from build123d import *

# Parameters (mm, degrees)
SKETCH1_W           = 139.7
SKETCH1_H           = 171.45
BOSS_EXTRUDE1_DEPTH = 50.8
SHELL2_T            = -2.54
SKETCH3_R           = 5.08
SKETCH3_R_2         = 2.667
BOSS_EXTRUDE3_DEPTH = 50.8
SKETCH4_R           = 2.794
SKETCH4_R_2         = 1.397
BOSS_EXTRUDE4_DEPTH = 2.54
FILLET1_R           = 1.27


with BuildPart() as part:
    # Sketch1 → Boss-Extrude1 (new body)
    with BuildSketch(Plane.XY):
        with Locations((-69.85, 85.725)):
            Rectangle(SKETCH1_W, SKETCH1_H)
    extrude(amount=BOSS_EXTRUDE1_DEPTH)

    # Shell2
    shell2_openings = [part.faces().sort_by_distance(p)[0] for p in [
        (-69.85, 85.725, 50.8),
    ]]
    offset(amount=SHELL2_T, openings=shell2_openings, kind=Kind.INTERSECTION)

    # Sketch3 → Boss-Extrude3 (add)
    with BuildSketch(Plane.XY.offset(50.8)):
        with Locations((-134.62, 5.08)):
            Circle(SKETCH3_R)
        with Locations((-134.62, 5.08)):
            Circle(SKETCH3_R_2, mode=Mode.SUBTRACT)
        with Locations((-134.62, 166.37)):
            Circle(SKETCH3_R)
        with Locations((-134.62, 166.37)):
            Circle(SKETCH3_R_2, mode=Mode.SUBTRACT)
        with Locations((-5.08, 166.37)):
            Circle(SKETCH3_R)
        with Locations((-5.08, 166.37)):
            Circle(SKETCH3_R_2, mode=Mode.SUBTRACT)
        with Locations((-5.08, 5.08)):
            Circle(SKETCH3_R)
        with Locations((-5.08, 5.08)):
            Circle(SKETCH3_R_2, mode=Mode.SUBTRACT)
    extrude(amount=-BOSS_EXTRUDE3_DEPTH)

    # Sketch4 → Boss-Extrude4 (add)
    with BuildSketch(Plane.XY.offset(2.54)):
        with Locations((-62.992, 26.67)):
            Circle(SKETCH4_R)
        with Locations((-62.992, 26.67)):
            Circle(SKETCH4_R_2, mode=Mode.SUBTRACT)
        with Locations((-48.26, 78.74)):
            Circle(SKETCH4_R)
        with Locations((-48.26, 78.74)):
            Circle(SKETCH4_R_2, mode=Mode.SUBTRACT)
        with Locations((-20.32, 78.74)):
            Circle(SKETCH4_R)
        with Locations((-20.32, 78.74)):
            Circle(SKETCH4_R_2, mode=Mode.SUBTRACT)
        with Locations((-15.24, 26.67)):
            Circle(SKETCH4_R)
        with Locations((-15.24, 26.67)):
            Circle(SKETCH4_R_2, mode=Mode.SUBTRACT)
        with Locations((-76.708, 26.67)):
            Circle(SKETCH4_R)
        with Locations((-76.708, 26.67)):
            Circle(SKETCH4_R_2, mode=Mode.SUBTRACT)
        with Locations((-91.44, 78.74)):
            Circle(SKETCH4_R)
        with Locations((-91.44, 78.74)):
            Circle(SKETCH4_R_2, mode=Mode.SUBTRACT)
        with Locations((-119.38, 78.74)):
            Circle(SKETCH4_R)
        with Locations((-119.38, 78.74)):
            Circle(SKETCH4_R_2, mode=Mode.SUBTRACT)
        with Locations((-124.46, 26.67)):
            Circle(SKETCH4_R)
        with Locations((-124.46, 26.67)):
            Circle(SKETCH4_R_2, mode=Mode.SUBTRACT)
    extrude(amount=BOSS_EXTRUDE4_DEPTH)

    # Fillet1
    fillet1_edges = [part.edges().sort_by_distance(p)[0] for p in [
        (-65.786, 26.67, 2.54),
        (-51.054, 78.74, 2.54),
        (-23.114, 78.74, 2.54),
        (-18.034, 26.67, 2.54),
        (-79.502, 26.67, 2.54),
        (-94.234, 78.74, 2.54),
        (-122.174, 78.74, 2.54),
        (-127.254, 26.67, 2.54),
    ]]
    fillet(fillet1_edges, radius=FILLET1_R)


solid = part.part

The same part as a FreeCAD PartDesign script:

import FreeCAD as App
import Part
import Sketcher
Q = App.Units.Quantity


def edges_at(feature, points):
    """Names of the edges that pass closest to the given points."""
    edges = feature.Shape.Edges
    near = lambda p: min(range(len(edges)), key=lambda i: edges[i].distToShape(Part.Vertex(*p))[0])
    return sorted({f"Edge{near(p) + 1}" for p in points})


def faces_at(feature, points):
    """Names of the faces that lie closest to the given points."""
    faces = feature.Shape.Faces
    near = lambda p: min(range(len(faces)), key=lambda i: faces[i].distToShape(Part.Vertex(*p))[0])
    return sorted({f"Face{near(p) + 1}" for p in points})

doc = App.newDocument("Part")
body = doc.addObject("PartDesign::Body", "Body")

# Sketch on XY plane
sketch1 = body.newObject("Sketcher::SketchObject", "Sketch")
sketch1.AttachmentSupport = (doc.getObject("XY_Plane"), [""])
sketch1.MapMode = "FlatFace"
sketch1.addGeometry(Part.LineSegment(App.Vector(-139.7, 171.45, 0), App.Vector(-139.7, 0, 0)), False)
sketch1.addGeometry(Part.LineSegment(App.Vector(-139.7, 0, 0), App.Vector(0, 0, 0)), False)
sketch1.addGeometry(Part.LineSegment(App.Vector(0, 0, 0), App.Vector(0, 171.45, 0)), False)
sketch1.addGeometry(Part.LineSegment(App.Vector(0, 171.45, 0), App.Vector(-139.7, 171.45, 0)), False)
sketch1.addConstraint(Sketcher.Constraint("Coincident", 0, 2, 1, 1))
sketch1.addConstraint(Sketcher.Constraint("Coincident", 1, 2, 2, 1))
sketch1.addConstraint(Sketcher.Constraint("Coincident", 2, 2, 3, 1))
sketch1.addConstraint(Sketcher.Constraint("Coincident", 3, 2, 0, 1))
sketch1.addConstraint(Sketcher.Constraint("Vertical", 0))
sketch1.addConstraint(Sketcher.Constraint("Horizontal", 1))
sketch1.addConstraint(Sketcher.Constraint("Vertical", 2))
sketch1.addConstraint(Sketcher.Constraint("Horizontal", 3))
sketch1.addConstraint(Sketcher.Constraint("Coincident", 1, 2, -1, 1))
sketch1.addConstraint(Sketcher.Constraint("DistanceX", 1, 1, 1, 2, Q("5.5 in")))
sketch1.addConstraint(Sketcher.Constraint("DistanceY", 0, 2, 0, 1, Q("6.75 in")))
pad1 = body.newObject("PartDesign::Pad", "Pad")
pad1.Profile = sketch1
pad1.Length = Q("2 in")
doc.recompute()

thickness = body.newObject("PartDesign::Thickness", "Thickness")
thickness.Base = (pad1, faces_at(pad1, [(-69.85, 85.725, 50.8)]))
thickness.Value = Q("0.1 in")
thickness.Reversed = True
thickness.Join = "Intersection"

# Sketch on XY plane
sketch2 = body.newObject("Sketcher::SketchObject", "Sketch001")
sketch2.AttachmentSupport = (doc.getObject("XY_Plane"), [""])
sketch2.MapMode = "FlatFace"
sketch2.AttachmentOffset = App.Placement(App.Vector(0, 0, 2 * 25.4), App.Rotation())
sketch2.addGeometry(Part.Circle(App.Vector(-134.62, 5.08, 0), App.Vector(0, 0, 1), 5.08), False)
sketch2.addGeometry(Part.Circle(App.Vector(-134.62, 5.08, 0), App.Vector(0, 0, 1), 2.667), False)
sketch2.addGeometry(Part.Circle(App.Vector(-134.62, 166.37, 0), App.Vector(0, 0, 1), 5.08), False)
sketch2.addGeometry(Part.Circle(App.Vector(-134.62, 166.37, 0), App.Vector(0, 0, 1), 2.667), False)
sketch2.addGeometry(Part.Circle(App.Vector(-5.08, 166.37, 0), App.Vector(0, 0, 1), 5.08), False)
sketch2.addGeometry(Part.Circle(App.Vector(-5.08, 166.37, 0), App.Vector(0, 0, 1), 2.667), False)
sketch2.addGeometry(Part.Circle(App.Vector(-5.08, 5.08, 0), App.Vector(0, 0, 1), 5.08), False)
sketch2.addGeometry(Part.Circle(App.Vector(-5.08, 5.08, 0), App.Vector(0, 0, 1), 2.667), False)
sketch2.addConstraint(Sketcher.Constraint("Coincident", 1, 3, 0, 3))
sketch2.addConstraint(Sketcher.Constraint("Coincident", 3, 3, 2, 3))
sketch2.addConstraint(Sketcher.Constraint("Coincident", 5, 3, 4, 3))
sketch2.addConstraint(Sketcher.Constraint("Coincident", 7, 3, 6, 3))
sketch2.addConstraint(Sketcher.Constraint("Equal", 0, 2))
sketch2.addConstraint(Sketcher.Constraint("Equal", 1, 3))
sketch2.addConstraint(Sketcher.Constraint("Equal", 2, 4))
sketch2.addConstraint(Sketcher.Constraint("Equal", 3, 5))
sketch2.addConstraint(Sketcher.Constraint("Equal", 4, 6))
sketch2.addConstraint(Sketcher.Constraint("Equal", 5, 7))
sketch2.addConstraint(Sketcher.Constraint("Horizontal", 3, 3, 4, 3))
sketch2.addConstraint(Sketcher.Constraint("Horizontal", 1, 3, 6, 3))
sketch2.addConstraint(Sketcher.Constraint("Vertical", 1, 3, 2, 3))
sketch2.addConstraint(Sketcher.Constraint("Vertical", 5, 3, 6, 3))
sketch2.addConstraint(Sketcher.Constraint("Diameter", 0, Q("0.4 in")))
sketch2.addConstraint(Sketcher.Constraint("Diameter", 1, Q("0.21 in")))
sketch2.addConstraint(Sketcher.Constraint("DistanceX", 0, 3, -1, 1, Q("5.3 in")))
sketch2.addConstraint(Sketcher.Constraint("DistanceY", -1, 1, 0, 3, Q("0.2 in")))
sketch2.addConstraint(Sketcher.Constraint("DistanceX", 4, 3, -1, 1, Q("0.2 in")))
sketch2.addConstraint(Sketcher.Constraint("DistanceY", -1, 1, 2, 3, Q("6.55 in")))
pad2 = body.newObject("PartDesign::Pad", "Pad001")
pad2.Profile = sketch2
pad2.Length = Q("2 in")
pad2.Reversed = True

# Sketch on XY plane
sketch3 = body.newObject("Sketcher::SketchObject", "Sketch002")
sketch3.AttachmentSupport = (doc.getObject("XY_Plane"), [""])
sketch3.MapMode = "FlatFace"
sketch3.AttachmentOffset = App.Placement(App.Vector(0, 0, 0.1 * 25.4), App.Rotation())
sketch3.addGeometry(Part.Circle(App.Vector(-62.992, 26.67, 0), App.Vector(0, 0, 1), 2.794), False)
sketch3.addGeometry(Part.Circle(App.Vector(-62.992, 26.67, 0), App.Vector(0, 0, 1), 1.397), False)
sketch3.addGeometry(Part.Circle(App.Vector(-48.26, 78.74, 0), App.Vector(0, 0, 1), 2.794), False)
sketch3.addGeometry(Part.Circle(App.Vector(-48.26, 78.74, 0), App.Vector(0, 0, 1), 1.397), False)
sketch3.addGeometry(Part.Circle(App.Vector(-20.32, 78.74, 0), App.Vector(0, 0, 1), 2.794), False)
sketch3.addGeometry(Part.Circle(App.Vector(-20.32, 78.74, 0), App.Vector(0, 0, 1), 1.397), False)
sketch3.addGeometry(Part.Circle(App.Vector(-15.24, 26.67, 0), App.Vector(0, 0, 1), 2.794), False)
sketch3.addGeometry(Part.Circle(App.Vector(-15.24, 26.67, 0), App.Vector(0, 0, 1), 1.397), False)
sketch3.addGeometry(Part.Circle(App.Vector(-76.708, 26.67, 0), App.Vector(0, 0, 1), 2.794), False)
sketch3.addGeometry(Part.Circle(App.Vector(-76.708, 26.67, 0), App.Vector(0, 0, 1), 1.397), False)
sketch3.addGeometry(Part.Circle(App.Vector(-91.44, 78.74, 0), App.Vector(0, 0, 1), 2.794), False)
sketch3.addGeometry(Part.Circle(App.Vector(-91.44, 78.74, 0), App.Vector(0, 0, 1), 1.397), False)
sketch3.addGeometry(Part.Circle(App.Vector(-119.38, 78.74, 0), App.Vector(0, 0, 1), 2.794), False)
sketch3.addGeometry(Part.Circle(App.Vector(-119.38, 78.74, 0), App.Vector(0, 0, 1), 1.397), False)
sketch3.addGeometry(Part.Circle(App.Vector(-124.46, 26.67, 0), App.Vector(0, 0, 1), 2.794), False)
sketch3.addGeometry(Part.Circle(App.Vector(-124.46, 26.67, 0), App.Vector(0, 0, 1), 1.397), False)
sketch3.addConstraint(Sketcher.Constraint("Coincident", 1, 3, 0, 3))
sketch3.addConstraint(Sketcher.Constraint("Coincident", 3, 3, 2, 3))
sketch3.addConstraint(Sketcher.Constraint("Coincident", 5, 3, 4, 3))
sketch3.addConstraint(Sketcher.Constraint("Coincident", 7, 3, 6, 3))
sketch3.addConstraint(Sketcher.Constraint("Coincident", 9, 3, 8, 3))
sketch3.addConstraint(Sketcher.Constraint("Coincident", 11, 3, 10, 3))
sketch3.addConstraint(Sketcher.Constraint("Coincident", 13, 3, 12, 3))
sketch3.addConstraint(Sketcher.Constraint("Coincident", 15, 3, 14, 3))
sketch3.addConstraint(Sketcher.Constraint("Equal", 0, 2))
sketch3.addConstraint(Sketcher.Constraint("Equal", 1, 3))
sketch3.addConstraint(Sketcher.Constraint("Equal", 2, 4))
sketch3.addConstraint(Sketcher.Constraint("Equal", 3, 5))
sketch3.addConstraint(Sketcher.Constraint("Equal", 4, 6))
sketch3.addConstraint(Sketcher.Constraint("Equal", 5, 7))
sketch3.addConstraint(Sketcher.Constraint("Equal", 6, 8))
sketch3.addConstraint(Sketcher.Constraint("Equal", 7, 9))
sketch3.addConstraint(Sketcher.Constraint("Equal", 8, 10))
sketch3.addConstraint(Sketcher.Constraint("Equal", 9, 11))
sketch3.addConstraint(Sketcher.Constraint("Equal", 10, 12))
sketch3.addConstraint(Sketcher.Constraint("Equal", 11, 13))
sketch3.addConstraint(Sketcher.Constraint("Equal", 12, 14))
sketch3.addConstraint(Sketcher.Constraint("Equal", 13, 15))
sketch3.addConstraint(Sketcher.Constraint("Horizontal", 3, 3, 4, 3))
sketch3.addConstraint(Sketcher.Constraint("Horizontal", 1, 3, 6, 3))
sketch3.addConstraint(Sketcher.Constraint("Horizontal", 7, 3, 8, 3))
sketch3.addConstraint(Sketcher.Constraint("Horizontal", 5, 3, 10, 3))
sketch3.addConstraint(Sketcher.Constraint("Horizontal", 11, 3, 12, 3))
sketch3.addConstraint(Sketcher.Constraint("Horizontal", 9, 3, 14, 3))
sketch3.addConstraint(Sketcher.Constraint("Diameter", 0, Q("0.22 in")))
sketch3.addConstraint(Sketcher.Constraint("Diameter", 1, Q("0.11 in")))
sketch3.addConstraint(Sketcher.Constraint("DistanceX", 2, 3, -1, 1, Q("1.9 in")))
sketch3.addConstraint(Sketcher.Constraint("DistanceY", -1, 1, 2, 3, Q("3.1 in")))
sketch3.addConstraint(Sketcher.Constraint("DistanceX", 4, 3, -1, 1, Q("0.8 in")))
sketch3.addConstraint(Sketcher.Constraint("DistanceX", 6, 3, -1, 1, Q("0.6 in")))
sketch3.addConstraint(Sketcher.Constraint("DistanceX", 10, 3, -1, 1, Q("3.6 in")))
sketch3.addConstraint(Sketcher.Constraint("DistanceX", 12, 3, -1, 1, Q("4.7 in")))
sketch3.addConstraint(Sketcher.Constraint("DistanceX", 14, 3, -1, 1, Q("4.9 in")))
sketch3.addConstraint(Sketcher.Constraint("DistanceX", 0, 3, -1, 1, Q("2.48 in")))
sketch3.addConstraint(Sketcher.Constraint("DistanceY", -1, 1, 0, 3, Q("1.05 in")))
sketch3.addConstraint(Sketcher.Constraint("DistanceX", 8, 3, -1, 1, Q("3.02 in")))
pad3 = body.newObject("PartDesign::Pad", "Pad002")
pad3.Profile = sketch3
pad3.Length = Q("0.1 in")
doc.recompute()

fillet = body.newObject("PartDesign::Fillet", "Fillet")
fillet.Base = (pad3, edges_at(pad3, [
    (-65.786, 26.67, 2.54),
    (-51.054, 78.74, 2.54),
    (-23.114, 78.74, 2.54),
    (-18.034, 26.67, 2.54),
    (-79.502, 26.67, 2.54),
    (-94.234, 78.74, 2.54),
    (-122.174, 78.74, 2.54),
    (-127.254, 26.67, 2.54),
]))
fillet.Radius = Q("0.05 in")

doc.recompute()
